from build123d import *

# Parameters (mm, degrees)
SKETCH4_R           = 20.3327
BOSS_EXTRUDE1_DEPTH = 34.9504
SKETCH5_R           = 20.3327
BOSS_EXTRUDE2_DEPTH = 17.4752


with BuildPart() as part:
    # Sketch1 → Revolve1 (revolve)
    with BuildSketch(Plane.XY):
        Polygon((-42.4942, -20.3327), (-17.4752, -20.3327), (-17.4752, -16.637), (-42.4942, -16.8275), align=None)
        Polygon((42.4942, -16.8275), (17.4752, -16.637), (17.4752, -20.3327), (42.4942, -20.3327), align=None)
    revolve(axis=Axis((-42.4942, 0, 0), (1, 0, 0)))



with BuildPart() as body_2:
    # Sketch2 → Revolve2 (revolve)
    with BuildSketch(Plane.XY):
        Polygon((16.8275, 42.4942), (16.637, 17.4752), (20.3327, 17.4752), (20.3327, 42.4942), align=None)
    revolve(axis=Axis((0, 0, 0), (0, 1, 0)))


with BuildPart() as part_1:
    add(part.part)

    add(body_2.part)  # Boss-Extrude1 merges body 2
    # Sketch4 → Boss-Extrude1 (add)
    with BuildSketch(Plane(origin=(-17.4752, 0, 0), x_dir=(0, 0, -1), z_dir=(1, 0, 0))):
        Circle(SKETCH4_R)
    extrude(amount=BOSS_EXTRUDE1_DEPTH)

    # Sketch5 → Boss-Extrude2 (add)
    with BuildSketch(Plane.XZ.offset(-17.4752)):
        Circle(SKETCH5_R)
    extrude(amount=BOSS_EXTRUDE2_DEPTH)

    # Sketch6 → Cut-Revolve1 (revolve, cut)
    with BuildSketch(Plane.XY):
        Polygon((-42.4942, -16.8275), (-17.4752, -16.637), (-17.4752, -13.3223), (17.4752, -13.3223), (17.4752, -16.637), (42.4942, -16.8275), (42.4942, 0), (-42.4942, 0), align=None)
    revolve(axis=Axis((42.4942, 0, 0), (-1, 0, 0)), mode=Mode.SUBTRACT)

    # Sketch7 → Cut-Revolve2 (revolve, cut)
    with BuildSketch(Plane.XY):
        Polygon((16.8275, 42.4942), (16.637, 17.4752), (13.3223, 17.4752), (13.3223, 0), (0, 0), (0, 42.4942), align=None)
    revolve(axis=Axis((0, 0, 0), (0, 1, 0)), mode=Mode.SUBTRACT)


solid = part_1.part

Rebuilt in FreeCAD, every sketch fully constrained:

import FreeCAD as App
import Part
import Sketcher
Q = App.Units.Quantity


def add_polygon(sketch, points):
    """Adds a closed chain of lines whose ends are joined by coincident constraints."""
    first, n = sketch.GeometryCount, len(points)
    for a, b in zip(points, points[1:] + points[:1]):
        sketch.addGeometry(Part.LineSegment(App.Vector(*a, 0), App.Vector(*b, 0)), False)
    for i in range(n):
        sketch.addConstraint(Sketcher.Constraint("Coincident", first + i, 2, first + (i + 1) % n, 1))

doc = App.newDocument("Part")
body = doc.addObject("PartDesign::Body", "Body")
body.AllowCompound = True

# Sketch on XY plane
sketch1 = body.newObject("Sketcher::SketchObject", "Sketch")
sketch1.AttachmentSupport = (doc.getObject("XY_Plane"), [""])
sketch1.MapMode = "FlatFace"
add_polygon(sketch1, [(-42.5, -20.3), (-17.5, -20.3), (-17.5, -16.6), (-42.5, -16.8)])  # lines 0-3
add_polygon(sketch1, [(42.5, -16.8), (17.5, -16.6), (17.5, -20.3), (42.5, -20.3)])  # lines 4-7
sketch1.addConstraint(Sketcher.Constraint("Horizontal", 0))
sketch1.addConstraint(Sketcher.Constraint("Vertical", 1))
sketch1.addConstraint(Sketcher.Constraint("Vertical", 3))
sketch1.addConstraint(Sketcher.Constraint("Vertical", 5))
sketch1.addConstraint(Sketcher.Constraint("Horizontal", 6))
sketch1.addConstraint(Sketcher.Constraint("Vertical", 7))
sketch1.addConstraint(Sketcher.Constraint("Symmetric", 1, 2, 4, 2, -2))
sketch1.addConstraint(Sketcher.Constraint("Symmetric", 3, 2, 6, 2, -2))
sketch1.addConstraint(Sketcher.Constraint("Horizontal", 2, 2, 7, 2))
sketch1.addConstraint(Sketcher.Constraint("DistanceX", 0, 1, 0, 2, Q("0.985 in")))
sketch1.addConstraint(Sketcher.Constraint("DistanceY", 3, 2, 3, 1, Q("0.138 in")))
sketch1.addConstraint(Sketcher.Constraint("DistanceY", 1, 1, 1, 2, Q("0.1455 in")))
sketch1.addConstraint(Sketcher.Constraint("DistanceX", 0, 2, -1, 1, Q("0.688 in")))
sketch1.addConstraint(Sketcher.Constraint("DistanceY", 1, 2, -1, 1, Q("0.655 in")))
revolution = body.newObject("PartDesign::Revolution", "Revolution")
revolution.Profile = sketch1
revolution.ReferenceAxis = (sketch1, ["H_Axis"])
revolution.Angle = 360
body2 = doc.addObject("PartDesign::Body", "Body001")

# Sketch on XY plane
sketch2 = body2.newObject("Sketcher::SketchObject", "Sketch001")
sketch2.AttachmentSupport = (doc.getObject("XY_Plane001"), [""])
sketch2.MapMode = "FlatFace"
add_polygon(sketch2, [(16.8, 42.5), (16.6, 17.5), (20.3, 17.5), (20.3, 42.5)])  # lines 0-3
sketch2.addConstraint(Sketcher.Constraint("Horizontal", 1))
sketch2.addConstraint(Sketcher.Constraint("Vertical", 2))
sketch2.addConstraint(Sketcher.Constraint("Horizontal", 3))
sketch2.addConstraint(Sketcher.Constraint("DistanceX", 3, 2, 3, 1, Q("0.138 in")))
sketch2.addConstraint(Sketcher.Constraint("DistanceY", 2, 1, 2, 2, Q("0.985 in")))
sketch2.addConstraint(Sketcher.Constraint("DistanceX", 1, 1, 1, 2, Q("0.1455 in")))
sketch2.addConstraint(Sketcher.Constraint("DistanceX", -1, 1, 0, 2, Q("0.655 in")))
sketch2.addConstraint(Sketcher.Constraint("DistanceY", -1, 1, 0, 2, Q("0.688 in")))
revolution2 = body2.newObject("PartDesign::Revolution", "Revolution001")
revolution2.Profile = sketch2
revolution2.ReferenceAxis = (sketch2, ["V_Axis"])
revolution2.Angle = 360
doc.recompute()

boolean = body.newObject("PartDesign::Boolean", "Boolean")
boolean.Type = "Fuse"
boolean.addObjects([body2])

# Sketch on YZ plane
sketch3 = body.newObject("Sketcher::SketchObject", "Sketch002")
sketch3.AttachmentSupport = (doc.getObject("YZ_Plane"), [""])
sketch3.MapMode = "FlatFace"
sketch3.AttachmentOffset = App.Placement(App.Vector(0, 0, -0.688 * 25.4), App.Rotation())
sketch3.addGeometry(Part.Circle(App.Vector(0, 0, 0), App.Vector(0, 0, 1), 20), False)
sketch3.addConstraint(Sketcher.Constraint("Coincident", 0, 3, -1, 1))
sketch3.addConstraint(Sketcher.Constraint("Diameter", 0, Q("1.601 in")))
pad1 = body.newObject("PartDesign::Pad", "Pad")
pad1.Profile = sketch3
pad1.Length = Q("1.376 in")

# Sketch on XZ plane
sketch4 = body.newObject("Sketcher::SketchObject", "Sketch003")
sketch4.AttachmentSupport = (doc.getObject("XZ_Plane"), [""])
sketch4.MapMode = "FlatFace"
sketch4.AttachmentOffset = App.Placement(App.Vector(0, 0, -0.688 * 25.4), App.Rotation())
sketch4.addGeometry(Part.Circle(App.Vector(0, 0, 0), App.Vector(0, 0, 1), 20), False)
sketch4.addConstraint(Sketcher.Constraint("Coincident", 0, 3, -1, 1))
sketch4.addConstraint(Sketcher.Constraint("Diameter", 0, Q("1.601 in")))
pad2 = body.newObject("PartDesign::Pad", "Pad001")
pad2.Profile = sketch4
pad2.Length = Q("0.688 in")

# Sketch on XY plane
sketch5 = body.newObject("Sketcher::SketchObject", "Sketch004")
sketch5.AttachmentSupport = (doc.getObject("XY_Plane"), [""])
sketch5.MapMode = "FlatFace"
add_polygon(sketch5, [(-42.5, -16.8), (-17.5, -16.6), (-17.5, -13.3), (17.5, -13.3), (17.5, -16.6), (42.5, -16.8), (42.5, 0), (-42.5, 0)])  # lines 0-7
sketch5.addConstraint(Sketcher.Constraint("Vertical", 1))
sketch5.addConstraint(Sketcher.Constraint("Horizontal", 2))
sketch5.addConstraint(Sketcher.Constraint("Vertical", 3))
sketch5.addConstraint(Sketcher.Constraint("Vertical", 5))
sketch5.addConstraint(Sketcher.Constraint("Horizontal", 6))
sketch5.addConstraint(Sketcher.Constraint("Vertical", 7))
sketch5.addConstraint(Sketcher.Constraint("Symmetric", 5, 2, 6, 2, -1, 1))
sketch5.addConstraint(Sketcher.Constraint("Symmetric", 0, 2, 3, 2, -2))
sketch5.addConstraint(Sketcher.Constraint("Horizontal", 4, 2, 7, 2))
sketch5.addConstraint(Sketcher.Constraint("DistanceX", 2, 1, 2, 2, Q("1.376 in")))
sketch5.addConstraint(Sketcher.Constraint("DistanceX", 6, 2, 6, 1, Q("3.346 in")))
sketch5.addConstraint(Sketcher.Constraint("DistanceY", 1, 1, 1, 2, Q("0.1305 in")))
sketch5.addConstraint(Sketcher.Constraint("DistanceY", 5, 1, 5, 2, Q("0.6625 in")))
sketch5.addConstraint(Sketcher.Constraint("DistanceY", 0, 2, -1, 1, Q("0.655 in")))
groove = body.newObject("PartDesign::Groove", "Groove")
groove.Profile = sketch5
groove.ReferenceAxis = (sketch5, ["H_Axis"])
groove.Angle = 360

# Sketch on XY plane
sketch6 = body.newObject("Sketcher::SketchObject", "Sketch005")
sketch6.AttachmentSupport = (doc.getObject("XY_Plane"), [""])
sketch6.MapMode = "FlatFace"
add_polygon(sketch6, [(16.6, 17.5), (16.8, 42.5), (0, 42.5), (0, 0), (13.3, 0), (13.3, 17.5)])  # lines 0-5
sketch6.addConstraint(Sketcher.Constraint("Horizontal", 1))
sketch6.addConstraint(Sketcher.Constraint("Vertical", 2))
sketch6.addConstraint(Sketcher.Constraint("Horizontal", 3))
sketch6.addConstraint(Sketcher.Constraint("Vertical", 4))
sketch6.addConstraint(Sketcher.Constraint("Horizontal", 5))
sketch6.addConstraint(Sketcher.Constraint("Coincident", 2, 2, -1, 1))
sketch6.addConstraint(Sketcher.Constraint("DistanceY", 2, 2, 2, 1, Q("1.673 in")))
sketch6.addConstraint(Sketcher.Constraint("DistanceY", 4, 1, 4, 2, Q("0.688 in")))
sketch6.addConstraint(Sketcher.Constraint("DistanceX", 1, 2, 1, 1, Q("0.6625 in")))
sketch6.addConstraint(Sketcher.Constraint("DistanceX", 3, 1, 3, 2, Q("0.5245 in")))
sketch6.addConstraint(Sketcher.Constraint("DistanceX", 5, 1, 5, 2, Q("0.1305 in")))
groove2 = body.newObject("PartDesign::Groove", "Groove001")
groove2.Profile = sketch6
groove2.ReferenceAxis = (sketch6, ["V_Axis"])
groove2.Angle = 360

doc.recompute()
